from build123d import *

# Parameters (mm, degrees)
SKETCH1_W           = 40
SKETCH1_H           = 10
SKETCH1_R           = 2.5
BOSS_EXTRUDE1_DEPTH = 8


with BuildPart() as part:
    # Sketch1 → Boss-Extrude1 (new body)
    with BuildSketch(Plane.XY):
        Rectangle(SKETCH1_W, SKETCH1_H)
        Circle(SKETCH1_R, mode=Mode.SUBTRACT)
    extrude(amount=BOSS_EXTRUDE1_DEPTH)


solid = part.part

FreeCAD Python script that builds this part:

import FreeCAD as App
import Part
import Sketcher

V = App.Vector

doc = App.newDocument("Part")
body = doc.addObject("PartDesign::Body", "Body")

# Sketch on XY plane
sketch1 = body.newObject("Sketcher::SketchObject", "Sketch")
sketch1.AttachmentSupport = (doc.getObject("XY_Plane"), [""])
sketch1.MapMode = "FlatFace"
sketch1.addGeometry([
    Part.LineSegment(V(-20, 5, 0), V(-20, -5, 0)),  # 0
    Part.LineSegment(V(-20, -5, 0), V(20, -5, 0)),  # 1
    Part.LineSegment(V(20, -5, 0), V(20, 5, 0)),  # 2
    Part.LineSegment(V(20, 5, 0), V(-20, 5, 0)),  # 3
    Part.Circle(V(0, 0, 0), V(0, 0, 1), 2.5),  # 4
], False)
sketch1.addConstraint([
    Sketcher.Constraint("Coincident", 0, 2, 1, 1),
    Sketcher.Constraint("Coincident", 1, 2, 2, 1),
    Sketcher.Constraint("Coincident", 2, 2, 3, 1),
    Sketcher.Constraint("Coincident", 3, 2, 0, 1),
    Sketcher.Constraint("Vertical", 0),
    Sketcher.Constraint("Horizontal", 1),
    Sketcher.Constraint("Vertical", 2),
    Sketcher.Constraint("Horizontal", 3),
    Sketcher.Constraint("Coincident", 4, 3, -1, 1),
    Sketcher.Constraint("Symmetric", 0, 2, 2, 2, -1, 1),
    Sketcher.Constraint("Diameter", 4, 5.0),
    Sketcher.Constraint("DistanceX", 1, 1, 1, 2, 40.0),
    Sketcher.Constraint("DistanceY", 0, 2, 0, 1, 10.0),
])
pad1 = body.newObject("PartDesign::Pad", "Pad")
pad1.Profile = sketch1
pad1.Length = 8

doc.recompute()
